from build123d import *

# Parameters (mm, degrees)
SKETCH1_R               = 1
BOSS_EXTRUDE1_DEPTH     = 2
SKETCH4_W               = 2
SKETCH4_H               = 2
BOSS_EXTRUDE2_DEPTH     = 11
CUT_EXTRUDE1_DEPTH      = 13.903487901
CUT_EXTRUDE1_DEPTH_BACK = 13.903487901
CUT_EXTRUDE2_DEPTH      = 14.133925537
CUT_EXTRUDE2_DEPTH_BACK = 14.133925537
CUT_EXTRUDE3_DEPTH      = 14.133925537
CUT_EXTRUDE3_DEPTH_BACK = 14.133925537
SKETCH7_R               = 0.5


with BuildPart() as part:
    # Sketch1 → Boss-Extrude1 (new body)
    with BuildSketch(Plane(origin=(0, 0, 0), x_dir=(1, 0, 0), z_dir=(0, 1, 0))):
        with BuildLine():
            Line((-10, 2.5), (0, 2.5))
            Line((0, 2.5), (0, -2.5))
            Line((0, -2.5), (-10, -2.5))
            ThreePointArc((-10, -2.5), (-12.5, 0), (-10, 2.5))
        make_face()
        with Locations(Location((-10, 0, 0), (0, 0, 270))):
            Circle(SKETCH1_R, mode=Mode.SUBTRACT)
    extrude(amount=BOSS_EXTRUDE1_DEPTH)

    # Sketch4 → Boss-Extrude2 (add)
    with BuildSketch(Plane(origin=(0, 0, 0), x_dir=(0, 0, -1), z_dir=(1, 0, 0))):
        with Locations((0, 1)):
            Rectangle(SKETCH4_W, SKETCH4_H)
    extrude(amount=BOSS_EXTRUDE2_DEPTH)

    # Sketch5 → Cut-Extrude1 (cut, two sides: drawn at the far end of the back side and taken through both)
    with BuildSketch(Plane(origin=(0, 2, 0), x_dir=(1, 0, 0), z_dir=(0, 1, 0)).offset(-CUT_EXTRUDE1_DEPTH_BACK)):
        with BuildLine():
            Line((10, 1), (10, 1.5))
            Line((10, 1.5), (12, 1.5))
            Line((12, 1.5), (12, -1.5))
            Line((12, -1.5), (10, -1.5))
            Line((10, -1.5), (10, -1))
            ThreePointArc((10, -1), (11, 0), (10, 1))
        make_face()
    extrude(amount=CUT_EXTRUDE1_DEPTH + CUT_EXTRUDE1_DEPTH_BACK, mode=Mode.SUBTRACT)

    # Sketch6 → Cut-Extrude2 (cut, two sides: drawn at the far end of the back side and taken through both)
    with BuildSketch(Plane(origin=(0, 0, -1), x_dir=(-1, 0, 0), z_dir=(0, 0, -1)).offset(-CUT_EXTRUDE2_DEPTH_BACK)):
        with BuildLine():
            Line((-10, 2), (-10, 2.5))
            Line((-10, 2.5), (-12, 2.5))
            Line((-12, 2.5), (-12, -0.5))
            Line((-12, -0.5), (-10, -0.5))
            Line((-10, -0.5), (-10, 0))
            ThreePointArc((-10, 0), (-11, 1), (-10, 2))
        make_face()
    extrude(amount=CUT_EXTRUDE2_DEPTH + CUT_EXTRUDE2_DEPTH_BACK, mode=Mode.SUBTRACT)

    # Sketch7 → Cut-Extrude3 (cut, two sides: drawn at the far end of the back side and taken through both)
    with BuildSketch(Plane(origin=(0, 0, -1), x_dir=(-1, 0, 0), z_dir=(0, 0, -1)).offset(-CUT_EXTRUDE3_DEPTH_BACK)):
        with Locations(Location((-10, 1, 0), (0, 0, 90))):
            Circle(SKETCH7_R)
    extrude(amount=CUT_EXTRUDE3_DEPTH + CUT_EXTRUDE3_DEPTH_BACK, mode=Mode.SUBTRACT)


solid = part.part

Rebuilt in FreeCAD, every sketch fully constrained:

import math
import FreeCAD as App
import Part
import Sketcher
Q = App.Units.Quantity


def add_polygon(sketch, points):
    """Adds a closed chain of lines whose ends are joined by coincident constraints."""
    first, n = sketch.GeometryCount, len(points)
    for a, b in zip(points, points[1:] + points[:1]):
        sketch.addGeometry(Part.LineSegment(App.Vector(*a, 0), App.Vector(*b, 0)), False)
    for i in range(n):
        sketch.addConstraint(Sketcher.Constraint("Coincident", first + i, 2, first + (i + 1) % n, 1))

doc = App.newDocument("Part")
body = doc.addObject("PartDesign::Body", "Body")

sketch1 = doc.addObject("Sketcher::SketchObject", "Sketch")
body.addObject(sketch1)
sketch1.AttachmentSupport = (doc.XZ_Plane, [""])
sketch1.MapMode = "FlatFace"
sketch1.addGeometry(Part.LineSegment(App.Vector(0, -2.5, 0), App.Vector(-10, -2.5, 0)), False)
sketch1.addGeometry(Part.ArcOfCircle(Part.Circle(App.Vector(-10, 0, 0), App.Vector(0, 0, 1), 2.5), math.radians(90), math.radians(270)), False)
sketch1.addGeometry(Part.LineSegment(App.Vector(-10, 2.5, 0), App.Vector(0, 2.5, 0)), False)
sketch1.addGeometry(Part.LineSegment(App.Vector(0, 2.5, 0), App.Vector(0, -2.5, 0)), False)
sketch1.addGeometry(Part.Circle(App.Vector(-10, 0, 0), App.Vector(0, 0, 1), 1), False)
sketch1.addConstraint(Sketcher.Constraint("Tangent", 0, 2, 1, 2))
sketch1.addConstraint(Sketcher.Constraint("Tangent", 1, 1, 2, 1))
sketch1.addConstraint(Sketcher.Constraint("Coincident", 2, 2, 3, 1))
sketch1.addConstraint(Sketcher.Constraint("Coincident", 3, 2, 0, 1))
sketch1.addConstraint(Sketcher.Constraint("Horizontal", 0))
sketch1.addConstraint(Sketcher.Constraint("Horizontal", 2))
sketch1.addConstraint(Sketcher.Constraint("Vertical", 3))
sketch1.addConstraint(Sketcher.Constraint("Coincident", 4, 3, 1, 3))
sketch1.addConstraint(Sketcher.Constraint("Symmetric", 2, 2, 3, 2, -1, 1))
sketch1.addConstraint(Sketcher.Constraint("Diameter", 4, Q("2 mm")))
sketch1.addConstraint(Sketcher.Constraint("Radius", 1, Q("2.5 mm")))
sketch1.addConstraint(Sketcher.Constraint("DistanceX", 0, 2, 0, 1, Q("10 mm")))
pad1 = doc.addObject("PartDesign::Pad", "Pad")
body.addObject(pad1)
pad1.Profile = sketch1
pad1.Length = 2
pad1.Reversed = True

sketch2 = doc.addObject("Sketcher::SketchObject", "Sketch001")
body.addObject(sketch2)
sketch2.AttachmentSupport = (doc.YZ_Plane, [""])
sketch2.MapMode = "FlatFace"
add_polygon(sketch2, [(2, 1), (0, 1), (0, -1), (2, -1)])
sketch2.addConstraint(Sketcher.Constraint("Horizontal", 0))
sketch2.addConstraint(Sketcher.Constraint("Vertical", 1))
sketch2.addConstraint(Sketcher.Constraint("Horizontal", 2))
sketch2.addConstraint(Sketcher.Constraint("Vertical", 3))
sketch2.addConstraint(Sketcher.Constraint("Symmetric", 0, 2, 1, 2, -1, 1))
sketch2.addConstraint(Sketcher.Constraint("Equal", 2, 1))
sketch2.addConstraint(Sketcher.Constraint("DistanceX", 0, 2, 0, 1, Q("2 mm")))
pad2 = doc.addObject("PartDesign::Pad", "Pad001")
body.addObject(pad2)
pad2.Profile = sketch2
pad2.Length = 11

sketch3 = doc.addObject("Sketcher::SketchObject", "Sketch002")
body.addObject(sketch3)
sketch3.AttachmentSupport = (doc.XZ_Plane, [""])
sketch3.MapMode = "FlatFace"
sketch3.AttachmentOffset = App.Placement(App.Vector(0, 0, -2), App.Rotation())
sketch3.addGeometry(Part.LineSegment(App.Vector(10, -1.5, 0), App.Vector(10, -1, 0)), False)
sketch3.addGeometry(Part.ArcOfCircle(Part.Circle(App.Vector(10, 0, 0), App.Vector(0, 0, 1), 1), math.radians(-90), math.radians(90)), False)
sketch3.addGeometry(Part.LineSegment(App.Vector(10, 1, 0), App.Vector(10, 1.5, 0)), False)
sketch3.addGeometry(Part.LineSegment(App.Vector(10, 1.5, 0), App.Vector(12, 1.5, 0)), False)
sketch3.addGeometry(Part.LineSegment(App.Vector(12, 1.5, 0), App.Vector(12, -1.5, 0)), False)
sketch3.addGeometry(Part.LineSegment(App.Vector(12, -1.5, 0), App.Vector(10, -1.5, 0)), False)
sketch3.addConstraint(Sketcher.Constraint("Coincident", 0, 2, 1, 1))
sketch3.addConstraint(Sketcher.Constraint("Coincident", 1, 2, 2, 1))
sketch3.addConstraint(Sketcher.Constraint("Coincident", 2, 2, 3, 1))
sketch3.addConstraint(Sketcher.Constraint("Coincident", 3, 2, 4, 1))
sketch3.addConstraint(Sketcher.Constraint("Coincident", 4, 2, 5, 1))
sketch3.addConstraint(Sketcher.Constraint("Coincident", 5, 2, 0, 1))
sketch3.addConstraint(Sketcher.Constraint("Vertical", 0))
sketch3.addConstraint(Sketcher.Constraint("Vertical", 2))
sketch3.addConstraint(Sketcher.Constraint("Horizontal", 3))
sketch3.addConstraint(Sketcher.Constraint("Vertical", 4))
sketch3.addConstraint(Sketcher.Constraint("Horizontal", 5))
sketch3.addConstraint(Sketcher.Constraint("Symmetric", 0, 2, 1, 2, -1))
sketch3.addConstraint(Sketcher.Constraint("Vertical", 1, 3, 0, 2))
sketch3.addConstraint(Sketcher.Constraint("Equal", 0, 2))
sketch3.addConstraint(Sketcher.Constraint("Radius", 1, Q("1 mm")))
sketch3.addConstraint(Sketcher.Constraint("DistanceX", 3, 1, 3, 2, Q("2 mm")))
sketch3.addConstraint(Sketcher.Constraint("DistanceY", 4, 2, 4, 1, Q("3 mm")))
sketch3.addConstraint(Sketcher.Constraint("DistanceX", -1, 1, 1, 3, Q("10 mm")))
pocket1 = doc.addObject("PartDesign::Pocket", "Pocket")
body.addObject(pocket1)
pocket1.Profile = sketch3
pocket1.Type = "ThroughAll"
pocket1.Midplane = True

sketch4 = doc.addObject("Sketcher::SketchObject", "Sketch003")
body.addObject(sketch4)
sketch4.AttachmentSupport = (doc.XY_Plane, [""])
sketch4.MapMode = "FlatFace"
sketch4.AttachmentOffset = App.Placement(App.Vector(0, 0, -1), App.Rotation())
sketch4.addGeometry(Part.LineSegment(App.Vector(10, 2, 0), App.Vector(10, 2.5, 0)), False)
sketch4.addGeometry(Part.LineSegment(App.Vector(10, 2.5, 0), App.Vector(12, 2.5, 0)), False)
sketch4.addGeometry(Part.LineSegment(App.Vector(12, 2.5, 0), App.Vector(12, -0.5, 0)), False)
sketch4.addGeometry(Part.LineSegment(App.Vector(12, -0.5, 0), App.Vector(10, -0.5, 0)), False)
sketch4.addGeometry(Part.LineSegment(App.Vector(10, -0.5, 0), App.Vector(10, 0, 0)), False)
sketch4.addGeometry(Part.ArcOfCircle(Part.Circle(App.Vector(10, 1, 0), App.Vector(0, 0, 1), 1), math.radians(-90), math.radians(90)), False)
sketch4.addConstraint(Sketcher.Constraint("Coincident", 0, 2, 1, 1))
sketch4.addConstraint(Sketcher.Constraint("Coincident", 1, 2, 2, 1))
sketch4.addConstraint(Sketcher.Constraint("Coincident", 2, 2, 3, 1))
sketch4.addConstraint(Sketcher.Constraint("Coincident", 3, 2, 4, 1))
sketch4.addConstraint(Sketcher.Constraint("Coincident", 4, 2, 5, 1))
sketch4.addConstraint(Sketcher.Constraint("Coincident", 5, 2, 0, 1))
sketch4.addConstraint(Sketcher.Constraint("Vertical", 0))
sketch4.addConstraint(Sketcher.Constraint("Horizontal", 1))
sketch4.addConstraint(Sketcher.Constraint("Vertical", 2))
sketch4.addConstraint(Sketcher.Constraint("Horizontal", 3))
sketch4.addConstraint(Sketcher.Constraint("Vertical", 4))
sketch4.addConstraint(Sketcher.Constraint("PointOnObject", 4, 2, -1))
sketch4.addConstraint(Sketcher.Constraint("Vertical", 5, 3, 0, 2))
sketch4.addConstraint(Sketcher.Constraint("Vertical", 0, 2, 3, 2))
sketch4.addConstraint(Sketcher.Constraint("Equal", 0, 4))
sketch4.addConstraint(Sketcher.Constraint("Radius", 5, Q("1 mm")))
sketch4.addConstraint(Sketcher.Constraint("DistanceX", 1, 1, 1, 2, Q("2 mm")))
sketch4.addConstraint(Sketcher.Constraint("DistanceY", 2, 2, 2, 1, Q("3 mm")))
sketch4.addConstraint(Sketcher.Constraint("DistanceX", -1, 1, 5, 3, Q("10 mm")))
pocket2 = doc.addObject("PartDesign::Pocket", "Pocket001")
body.addObject(pocket2)
pocket2.Profile = sketch4
pocket2.Type = "ThroughAll"
pocket2.Midplane = True

sketch5 = doc.addObject("Sketcher::SketchObject", "Sketch004")
body.addObject(sketch5)
sketch5.AttachmentSupport = (doc.XY_Plane, [""])
sketch5.MapMode = "FlatFace"
sketch5.AttachmentOffset = App.Placement(App.Vector(0, 0, -1), App.Rotation())
sketch5.addGeometry(Part.Circle(App.Vector(10, 1, 0), App.Vector(0, 0, 1), 0.5), False)
sketch5.addConstraint(Sketcher.Constraint("Diameter", 0, Q("1 mm")))
sketch5.addConstraint(Sketcher.Constraint("DistanceX", -1, 1, 0, 3, Q("10 mm")))
sketch5.addConstraint(Sketcher.Constraint("DistanceY", -1, 1, 0, 3, Q("1 mm")))
pocket3 = doc.addObject("PartDesign::Pocket", "Pocket002")
body.addObject(pocket3)
pocket3.Profile = sketch5
pocket3.Type = "ThroughAll"
pocket3.Midplane = True

doc.recompute()
